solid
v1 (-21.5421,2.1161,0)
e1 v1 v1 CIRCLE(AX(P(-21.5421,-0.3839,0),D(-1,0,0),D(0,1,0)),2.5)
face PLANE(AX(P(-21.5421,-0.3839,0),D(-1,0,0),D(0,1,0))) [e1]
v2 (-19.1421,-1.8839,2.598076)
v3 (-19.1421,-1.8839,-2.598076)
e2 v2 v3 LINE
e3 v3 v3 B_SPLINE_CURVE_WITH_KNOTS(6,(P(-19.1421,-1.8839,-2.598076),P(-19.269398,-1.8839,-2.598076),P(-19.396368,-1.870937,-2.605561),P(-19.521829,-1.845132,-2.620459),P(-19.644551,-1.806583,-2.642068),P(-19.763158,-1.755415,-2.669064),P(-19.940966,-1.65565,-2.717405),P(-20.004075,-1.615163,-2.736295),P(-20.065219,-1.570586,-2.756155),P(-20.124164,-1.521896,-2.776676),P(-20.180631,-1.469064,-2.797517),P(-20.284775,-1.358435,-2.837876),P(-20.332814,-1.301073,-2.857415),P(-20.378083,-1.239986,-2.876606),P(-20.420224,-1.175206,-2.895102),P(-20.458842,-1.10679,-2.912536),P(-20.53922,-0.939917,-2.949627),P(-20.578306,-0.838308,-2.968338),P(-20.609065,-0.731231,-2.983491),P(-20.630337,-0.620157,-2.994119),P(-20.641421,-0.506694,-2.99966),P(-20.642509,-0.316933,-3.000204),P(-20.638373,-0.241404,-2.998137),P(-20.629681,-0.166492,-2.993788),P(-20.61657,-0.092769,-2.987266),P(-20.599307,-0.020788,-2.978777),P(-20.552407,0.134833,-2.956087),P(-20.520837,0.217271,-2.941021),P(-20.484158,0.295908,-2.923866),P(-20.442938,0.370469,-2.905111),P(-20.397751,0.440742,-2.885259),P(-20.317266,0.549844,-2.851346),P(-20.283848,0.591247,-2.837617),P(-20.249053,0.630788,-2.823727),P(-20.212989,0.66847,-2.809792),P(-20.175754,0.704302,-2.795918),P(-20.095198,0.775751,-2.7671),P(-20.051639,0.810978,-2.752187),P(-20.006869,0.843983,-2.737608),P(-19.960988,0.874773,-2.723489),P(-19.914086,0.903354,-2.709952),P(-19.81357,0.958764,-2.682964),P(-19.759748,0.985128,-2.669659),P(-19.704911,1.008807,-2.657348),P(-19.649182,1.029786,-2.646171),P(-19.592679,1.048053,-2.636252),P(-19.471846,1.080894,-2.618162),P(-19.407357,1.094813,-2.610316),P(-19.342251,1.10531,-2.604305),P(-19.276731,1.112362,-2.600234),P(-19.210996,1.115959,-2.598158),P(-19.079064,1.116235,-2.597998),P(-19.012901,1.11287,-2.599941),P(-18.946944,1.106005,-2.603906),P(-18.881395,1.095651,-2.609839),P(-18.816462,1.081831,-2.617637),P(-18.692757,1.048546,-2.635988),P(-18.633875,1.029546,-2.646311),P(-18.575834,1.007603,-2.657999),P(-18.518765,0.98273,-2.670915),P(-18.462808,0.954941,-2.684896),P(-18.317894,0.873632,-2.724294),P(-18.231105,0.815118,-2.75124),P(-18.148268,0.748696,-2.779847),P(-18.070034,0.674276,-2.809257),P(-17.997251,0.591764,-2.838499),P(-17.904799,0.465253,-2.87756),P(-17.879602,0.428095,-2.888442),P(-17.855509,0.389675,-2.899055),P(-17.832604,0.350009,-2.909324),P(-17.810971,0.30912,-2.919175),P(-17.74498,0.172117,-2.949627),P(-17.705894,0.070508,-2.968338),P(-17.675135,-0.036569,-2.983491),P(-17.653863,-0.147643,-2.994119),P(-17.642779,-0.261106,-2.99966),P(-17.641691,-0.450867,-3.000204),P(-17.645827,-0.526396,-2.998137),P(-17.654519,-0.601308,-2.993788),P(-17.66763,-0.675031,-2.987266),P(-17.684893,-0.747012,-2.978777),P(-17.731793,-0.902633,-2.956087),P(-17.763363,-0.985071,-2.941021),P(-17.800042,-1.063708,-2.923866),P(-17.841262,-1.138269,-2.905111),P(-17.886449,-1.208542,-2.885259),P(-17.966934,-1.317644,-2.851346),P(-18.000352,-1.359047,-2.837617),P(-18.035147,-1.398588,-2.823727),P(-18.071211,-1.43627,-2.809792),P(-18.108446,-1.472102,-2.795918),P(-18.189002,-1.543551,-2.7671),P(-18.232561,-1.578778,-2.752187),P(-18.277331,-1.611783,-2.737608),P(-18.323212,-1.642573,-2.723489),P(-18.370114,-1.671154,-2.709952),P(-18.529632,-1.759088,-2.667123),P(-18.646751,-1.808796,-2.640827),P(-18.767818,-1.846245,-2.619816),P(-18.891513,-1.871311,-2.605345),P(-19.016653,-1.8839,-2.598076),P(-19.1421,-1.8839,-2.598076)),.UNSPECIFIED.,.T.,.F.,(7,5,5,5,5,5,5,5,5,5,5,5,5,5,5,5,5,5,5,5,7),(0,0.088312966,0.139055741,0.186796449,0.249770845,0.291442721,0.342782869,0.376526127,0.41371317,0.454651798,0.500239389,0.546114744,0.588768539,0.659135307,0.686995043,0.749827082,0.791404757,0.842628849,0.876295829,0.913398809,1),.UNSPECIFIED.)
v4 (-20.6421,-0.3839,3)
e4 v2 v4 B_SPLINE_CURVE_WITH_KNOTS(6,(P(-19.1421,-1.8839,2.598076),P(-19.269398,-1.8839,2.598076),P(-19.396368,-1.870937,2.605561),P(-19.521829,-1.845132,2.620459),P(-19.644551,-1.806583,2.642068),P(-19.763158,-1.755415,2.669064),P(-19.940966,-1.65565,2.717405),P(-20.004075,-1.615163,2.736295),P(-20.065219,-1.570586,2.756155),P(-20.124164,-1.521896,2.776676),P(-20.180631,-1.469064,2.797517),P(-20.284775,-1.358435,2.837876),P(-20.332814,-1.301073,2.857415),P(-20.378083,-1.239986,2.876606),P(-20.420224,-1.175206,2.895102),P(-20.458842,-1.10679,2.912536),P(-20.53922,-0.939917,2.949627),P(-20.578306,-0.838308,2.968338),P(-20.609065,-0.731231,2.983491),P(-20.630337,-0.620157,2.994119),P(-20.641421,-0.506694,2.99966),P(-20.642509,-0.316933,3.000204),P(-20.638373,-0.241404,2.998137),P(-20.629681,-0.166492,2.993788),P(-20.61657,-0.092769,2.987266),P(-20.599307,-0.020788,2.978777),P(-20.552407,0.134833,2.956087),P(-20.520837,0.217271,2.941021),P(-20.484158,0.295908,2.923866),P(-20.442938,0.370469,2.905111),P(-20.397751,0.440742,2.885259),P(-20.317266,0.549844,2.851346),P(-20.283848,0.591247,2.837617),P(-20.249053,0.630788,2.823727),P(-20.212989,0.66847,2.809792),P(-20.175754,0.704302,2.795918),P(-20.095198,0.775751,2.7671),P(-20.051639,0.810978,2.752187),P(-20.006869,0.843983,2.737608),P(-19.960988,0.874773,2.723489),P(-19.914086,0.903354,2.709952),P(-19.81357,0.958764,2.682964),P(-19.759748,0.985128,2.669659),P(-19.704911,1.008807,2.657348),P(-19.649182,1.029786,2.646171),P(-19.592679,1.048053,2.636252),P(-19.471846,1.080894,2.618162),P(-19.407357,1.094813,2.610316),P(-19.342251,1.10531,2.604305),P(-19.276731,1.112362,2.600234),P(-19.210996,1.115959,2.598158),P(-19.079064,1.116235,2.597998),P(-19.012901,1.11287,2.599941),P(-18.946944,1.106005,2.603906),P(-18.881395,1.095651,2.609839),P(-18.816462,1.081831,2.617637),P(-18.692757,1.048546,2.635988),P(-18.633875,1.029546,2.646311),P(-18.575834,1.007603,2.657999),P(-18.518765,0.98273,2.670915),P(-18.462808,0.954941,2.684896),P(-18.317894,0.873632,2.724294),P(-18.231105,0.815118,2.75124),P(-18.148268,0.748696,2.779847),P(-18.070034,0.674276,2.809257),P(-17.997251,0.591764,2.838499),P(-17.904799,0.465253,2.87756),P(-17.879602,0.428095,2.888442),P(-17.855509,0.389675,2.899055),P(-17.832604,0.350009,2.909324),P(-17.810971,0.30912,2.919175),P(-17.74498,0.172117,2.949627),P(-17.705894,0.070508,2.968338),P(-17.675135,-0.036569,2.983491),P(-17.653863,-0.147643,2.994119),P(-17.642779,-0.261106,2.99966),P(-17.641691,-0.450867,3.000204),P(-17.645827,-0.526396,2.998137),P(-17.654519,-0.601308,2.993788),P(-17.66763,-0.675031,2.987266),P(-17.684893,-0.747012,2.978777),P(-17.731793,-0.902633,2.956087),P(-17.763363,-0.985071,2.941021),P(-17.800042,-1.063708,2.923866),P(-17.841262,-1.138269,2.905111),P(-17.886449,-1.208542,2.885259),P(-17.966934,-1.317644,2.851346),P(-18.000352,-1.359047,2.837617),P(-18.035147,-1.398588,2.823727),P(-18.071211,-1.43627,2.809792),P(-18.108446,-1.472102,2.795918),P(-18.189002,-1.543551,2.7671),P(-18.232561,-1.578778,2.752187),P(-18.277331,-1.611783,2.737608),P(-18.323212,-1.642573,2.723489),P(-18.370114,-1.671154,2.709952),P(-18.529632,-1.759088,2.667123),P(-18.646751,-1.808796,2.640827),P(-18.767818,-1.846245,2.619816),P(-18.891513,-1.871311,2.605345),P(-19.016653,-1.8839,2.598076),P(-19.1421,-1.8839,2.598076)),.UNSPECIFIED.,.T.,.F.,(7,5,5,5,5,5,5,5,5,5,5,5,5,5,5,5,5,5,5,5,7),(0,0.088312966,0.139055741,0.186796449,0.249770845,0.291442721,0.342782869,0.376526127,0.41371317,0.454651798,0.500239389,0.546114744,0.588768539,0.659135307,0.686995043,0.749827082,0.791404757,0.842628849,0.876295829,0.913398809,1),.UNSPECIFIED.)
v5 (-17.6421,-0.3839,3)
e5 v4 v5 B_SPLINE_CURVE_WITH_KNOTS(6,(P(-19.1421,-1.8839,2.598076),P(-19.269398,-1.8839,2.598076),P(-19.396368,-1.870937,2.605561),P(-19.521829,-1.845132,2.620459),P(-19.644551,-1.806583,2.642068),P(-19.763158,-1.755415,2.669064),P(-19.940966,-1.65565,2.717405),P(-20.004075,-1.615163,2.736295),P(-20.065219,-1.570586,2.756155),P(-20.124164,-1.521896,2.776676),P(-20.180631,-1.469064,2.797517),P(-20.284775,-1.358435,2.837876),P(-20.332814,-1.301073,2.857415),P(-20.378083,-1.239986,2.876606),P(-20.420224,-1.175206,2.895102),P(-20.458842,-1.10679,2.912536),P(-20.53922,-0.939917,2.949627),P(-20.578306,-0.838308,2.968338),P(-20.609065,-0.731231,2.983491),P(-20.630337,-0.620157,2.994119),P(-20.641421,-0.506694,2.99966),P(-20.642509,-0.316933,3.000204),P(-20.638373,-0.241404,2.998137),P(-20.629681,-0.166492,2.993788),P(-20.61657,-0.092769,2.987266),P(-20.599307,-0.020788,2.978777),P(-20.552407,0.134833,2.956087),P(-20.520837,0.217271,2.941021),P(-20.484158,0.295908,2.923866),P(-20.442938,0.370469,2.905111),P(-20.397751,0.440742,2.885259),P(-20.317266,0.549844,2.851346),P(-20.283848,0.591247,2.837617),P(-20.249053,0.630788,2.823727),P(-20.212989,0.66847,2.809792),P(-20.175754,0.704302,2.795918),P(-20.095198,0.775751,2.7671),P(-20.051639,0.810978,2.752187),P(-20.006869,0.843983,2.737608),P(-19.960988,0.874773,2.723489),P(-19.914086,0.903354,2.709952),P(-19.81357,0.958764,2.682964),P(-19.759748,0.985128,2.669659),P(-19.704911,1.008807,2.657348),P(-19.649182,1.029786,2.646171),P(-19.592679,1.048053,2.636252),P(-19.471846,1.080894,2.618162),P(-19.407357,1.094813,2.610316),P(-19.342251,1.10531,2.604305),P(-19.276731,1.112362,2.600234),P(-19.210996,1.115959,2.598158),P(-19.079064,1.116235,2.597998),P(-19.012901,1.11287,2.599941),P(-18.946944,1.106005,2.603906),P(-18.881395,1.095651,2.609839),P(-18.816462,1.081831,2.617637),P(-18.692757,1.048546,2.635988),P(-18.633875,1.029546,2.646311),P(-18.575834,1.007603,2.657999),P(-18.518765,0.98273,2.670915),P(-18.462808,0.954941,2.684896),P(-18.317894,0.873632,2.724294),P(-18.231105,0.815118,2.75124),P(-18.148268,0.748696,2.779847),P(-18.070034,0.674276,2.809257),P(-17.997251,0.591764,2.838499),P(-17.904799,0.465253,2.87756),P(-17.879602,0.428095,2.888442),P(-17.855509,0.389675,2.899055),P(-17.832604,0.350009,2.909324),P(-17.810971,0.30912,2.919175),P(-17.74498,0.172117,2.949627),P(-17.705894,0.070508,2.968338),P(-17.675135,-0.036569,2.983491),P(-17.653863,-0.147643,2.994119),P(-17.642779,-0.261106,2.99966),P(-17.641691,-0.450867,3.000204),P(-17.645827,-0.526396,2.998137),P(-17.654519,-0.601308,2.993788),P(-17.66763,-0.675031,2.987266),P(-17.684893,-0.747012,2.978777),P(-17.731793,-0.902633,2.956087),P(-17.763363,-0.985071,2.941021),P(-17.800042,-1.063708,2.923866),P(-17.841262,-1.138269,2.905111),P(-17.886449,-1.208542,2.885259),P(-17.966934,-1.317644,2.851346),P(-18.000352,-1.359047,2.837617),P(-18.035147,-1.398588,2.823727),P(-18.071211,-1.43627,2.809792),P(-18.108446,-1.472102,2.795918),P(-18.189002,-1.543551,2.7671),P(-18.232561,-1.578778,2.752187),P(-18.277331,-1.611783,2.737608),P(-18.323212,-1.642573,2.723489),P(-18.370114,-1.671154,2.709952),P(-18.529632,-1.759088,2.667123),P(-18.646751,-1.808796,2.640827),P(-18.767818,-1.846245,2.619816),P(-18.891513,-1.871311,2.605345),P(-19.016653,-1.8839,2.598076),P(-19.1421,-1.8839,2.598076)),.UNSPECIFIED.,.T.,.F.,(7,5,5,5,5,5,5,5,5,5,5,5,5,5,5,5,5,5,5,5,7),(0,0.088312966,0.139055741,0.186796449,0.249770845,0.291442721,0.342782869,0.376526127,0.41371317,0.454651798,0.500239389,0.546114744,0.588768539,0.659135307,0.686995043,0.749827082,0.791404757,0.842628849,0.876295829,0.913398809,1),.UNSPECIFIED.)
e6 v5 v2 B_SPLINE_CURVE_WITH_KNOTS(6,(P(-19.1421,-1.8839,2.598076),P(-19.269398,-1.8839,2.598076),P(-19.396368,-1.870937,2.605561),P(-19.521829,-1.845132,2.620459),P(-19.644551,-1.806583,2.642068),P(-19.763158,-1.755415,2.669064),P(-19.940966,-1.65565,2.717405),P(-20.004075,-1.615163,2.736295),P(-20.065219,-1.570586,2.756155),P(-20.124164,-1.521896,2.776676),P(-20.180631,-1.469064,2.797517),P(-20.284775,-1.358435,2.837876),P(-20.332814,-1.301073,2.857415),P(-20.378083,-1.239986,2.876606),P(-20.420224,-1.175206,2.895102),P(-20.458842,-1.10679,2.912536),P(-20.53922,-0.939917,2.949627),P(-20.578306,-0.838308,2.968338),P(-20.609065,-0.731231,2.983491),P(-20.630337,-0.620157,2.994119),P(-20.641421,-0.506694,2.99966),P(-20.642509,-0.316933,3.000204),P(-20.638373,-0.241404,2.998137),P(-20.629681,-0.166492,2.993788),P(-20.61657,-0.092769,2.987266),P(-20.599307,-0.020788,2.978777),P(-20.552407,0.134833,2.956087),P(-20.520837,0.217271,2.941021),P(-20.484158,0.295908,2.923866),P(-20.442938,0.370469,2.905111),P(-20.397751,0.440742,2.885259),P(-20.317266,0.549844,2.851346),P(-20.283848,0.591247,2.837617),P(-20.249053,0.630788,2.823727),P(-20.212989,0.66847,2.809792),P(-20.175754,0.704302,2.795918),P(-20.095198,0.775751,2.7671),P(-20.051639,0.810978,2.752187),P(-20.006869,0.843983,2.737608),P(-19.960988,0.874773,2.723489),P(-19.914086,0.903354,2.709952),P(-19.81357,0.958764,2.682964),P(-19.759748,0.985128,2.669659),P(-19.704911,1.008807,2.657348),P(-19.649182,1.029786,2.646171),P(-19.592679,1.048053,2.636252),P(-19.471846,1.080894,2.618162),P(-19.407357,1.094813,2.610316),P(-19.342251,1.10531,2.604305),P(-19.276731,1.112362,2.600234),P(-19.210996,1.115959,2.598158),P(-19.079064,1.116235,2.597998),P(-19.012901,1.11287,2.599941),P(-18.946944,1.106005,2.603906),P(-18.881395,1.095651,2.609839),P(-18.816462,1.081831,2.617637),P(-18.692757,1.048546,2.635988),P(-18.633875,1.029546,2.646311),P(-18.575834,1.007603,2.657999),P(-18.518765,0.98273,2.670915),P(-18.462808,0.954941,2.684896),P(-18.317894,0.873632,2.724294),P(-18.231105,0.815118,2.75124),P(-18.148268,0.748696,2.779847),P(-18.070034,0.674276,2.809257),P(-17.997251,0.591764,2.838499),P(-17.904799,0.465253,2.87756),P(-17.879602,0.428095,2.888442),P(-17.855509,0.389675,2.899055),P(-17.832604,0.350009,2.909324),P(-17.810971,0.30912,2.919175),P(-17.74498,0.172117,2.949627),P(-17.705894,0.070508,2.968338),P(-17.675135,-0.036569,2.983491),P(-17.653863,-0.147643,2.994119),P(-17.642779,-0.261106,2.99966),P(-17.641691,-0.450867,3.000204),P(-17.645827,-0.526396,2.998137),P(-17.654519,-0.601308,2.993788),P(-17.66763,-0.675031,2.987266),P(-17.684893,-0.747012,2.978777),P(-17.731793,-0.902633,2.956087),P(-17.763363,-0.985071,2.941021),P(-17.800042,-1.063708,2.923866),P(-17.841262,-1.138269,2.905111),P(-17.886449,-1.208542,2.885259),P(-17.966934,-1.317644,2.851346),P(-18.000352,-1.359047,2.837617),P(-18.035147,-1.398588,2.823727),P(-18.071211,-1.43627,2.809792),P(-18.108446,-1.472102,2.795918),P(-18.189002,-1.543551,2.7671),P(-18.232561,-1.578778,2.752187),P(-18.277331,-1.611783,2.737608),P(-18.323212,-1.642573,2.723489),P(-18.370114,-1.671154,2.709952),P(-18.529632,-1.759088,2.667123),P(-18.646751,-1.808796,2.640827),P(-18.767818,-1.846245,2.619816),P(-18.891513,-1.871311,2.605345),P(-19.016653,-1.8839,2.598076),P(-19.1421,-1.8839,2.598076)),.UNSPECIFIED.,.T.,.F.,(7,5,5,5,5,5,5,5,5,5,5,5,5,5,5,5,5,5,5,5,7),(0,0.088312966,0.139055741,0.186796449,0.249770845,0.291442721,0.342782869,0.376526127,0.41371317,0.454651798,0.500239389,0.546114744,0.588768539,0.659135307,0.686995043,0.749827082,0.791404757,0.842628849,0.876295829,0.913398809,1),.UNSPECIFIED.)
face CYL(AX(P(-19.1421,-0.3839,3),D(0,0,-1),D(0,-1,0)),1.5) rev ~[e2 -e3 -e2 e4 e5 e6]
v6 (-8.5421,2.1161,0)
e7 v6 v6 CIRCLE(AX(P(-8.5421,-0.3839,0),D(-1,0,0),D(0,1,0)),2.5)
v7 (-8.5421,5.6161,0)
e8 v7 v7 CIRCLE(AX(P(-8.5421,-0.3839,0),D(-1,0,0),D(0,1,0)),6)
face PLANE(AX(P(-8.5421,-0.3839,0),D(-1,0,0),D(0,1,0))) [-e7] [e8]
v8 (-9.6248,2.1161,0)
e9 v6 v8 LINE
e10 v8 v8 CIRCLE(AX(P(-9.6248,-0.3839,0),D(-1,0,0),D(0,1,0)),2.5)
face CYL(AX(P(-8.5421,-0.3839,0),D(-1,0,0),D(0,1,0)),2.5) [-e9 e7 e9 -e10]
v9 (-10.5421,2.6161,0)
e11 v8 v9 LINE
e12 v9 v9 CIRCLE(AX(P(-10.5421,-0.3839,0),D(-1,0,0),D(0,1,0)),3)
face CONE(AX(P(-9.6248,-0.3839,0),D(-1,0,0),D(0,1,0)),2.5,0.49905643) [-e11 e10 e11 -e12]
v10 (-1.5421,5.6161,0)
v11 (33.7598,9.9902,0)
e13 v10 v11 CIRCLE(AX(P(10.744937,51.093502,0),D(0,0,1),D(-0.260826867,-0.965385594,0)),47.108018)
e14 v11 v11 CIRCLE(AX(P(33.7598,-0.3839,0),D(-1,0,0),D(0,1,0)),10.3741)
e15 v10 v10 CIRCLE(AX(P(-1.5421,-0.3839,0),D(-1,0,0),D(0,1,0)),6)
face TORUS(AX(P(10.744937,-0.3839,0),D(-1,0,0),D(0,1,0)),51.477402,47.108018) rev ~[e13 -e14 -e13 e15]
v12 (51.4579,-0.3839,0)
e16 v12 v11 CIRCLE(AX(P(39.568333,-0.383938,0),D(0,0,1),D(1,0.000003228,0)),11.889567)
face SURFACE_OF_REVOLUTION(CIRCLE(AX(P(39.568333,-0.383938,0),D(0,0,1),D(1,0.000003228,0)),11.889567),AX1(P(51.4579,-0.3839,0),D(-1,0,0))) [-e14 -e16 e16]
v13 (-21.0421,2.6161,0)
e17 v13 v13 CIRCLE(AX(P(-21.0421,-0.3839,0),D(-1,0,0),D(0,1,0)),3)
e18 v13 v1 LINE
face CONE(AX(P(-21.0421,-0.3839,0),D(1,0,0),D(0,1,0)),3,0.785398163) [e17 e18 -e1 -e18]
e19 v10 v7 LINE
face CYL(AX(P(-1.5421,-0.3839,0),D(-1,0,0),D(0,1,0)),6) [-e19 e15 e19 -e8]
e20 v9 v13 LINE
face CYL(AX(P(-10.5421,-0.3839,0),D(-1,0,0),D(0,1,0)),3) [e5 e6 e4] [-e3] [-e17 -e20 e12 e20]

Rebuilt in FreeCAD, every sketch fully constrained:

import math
import FreeCAD as App
import Part
import Sketcher

V = App.Vector


def edges_at(feature, points):
    """Names of the edges that pass closest to the given points."""
    edges = feature.Shape.Edges
    near = lambda p: min(range(len(edges)), key=lambda i: edges[i].distToShape(Part.Vertex(*p))[0])
    return sorted({f"Edge{near(p) + 1}" for p in points})

doc = App.newDocument("Part")
body = doc.addObject("PartDesign::Body", "Body")

sketch1 = body.newObject("Sketcher::SketchObject", "Sketch")
sketch1.AttachmentSupport = (doc.getObject("XY_Plane"), [""])
sketch1.MapMode = "FlatFace"
sketch1.addGeometry([
    Part.ArcOfCircle(Part.Circle(V(39.5684, -0.3839, 0), V(0, 0, 1), 11.8895), math.radians(0), math.radians(119.245059)),
    Part.ArcOfCircle(Part.Circle(V(10.745, 51.0944, 0), V(0, 0, 1), 47.108901), math.radians(-105.118921), math.radians(-60.754943)),
    Part.LineSegment(V(-1.5421, 5.6161, 0), V(-8.5421, 5.6161, 0)),
    Part.LineSegment(V(-8.5421, 5.6161, 0), V(-8.5421, 2.1161, 0)),
    Part.LineSegment(V(-8.5421, 2.1161, 0), V(-9.6248, 2.1161, 0)),
    Part.LineSegment(V(-9.6248, 2.1161, 0), V(-10.5421, 2.6161, 0)),
    Part.LineSegment(V(-10.5421, 2.6161, 0), V(-21.5421, 2.6161, 0)),
    Part.LineSegment(V(-21.5421, 2.6161, 0), V(-21.5421, -0.3839, 0)),
    Part.LineSegment(V(-21.5421, -0.3839, 0), V(51.4579, -0.3839, 0)),
], False)
sketch1.addGeometry(Part.LineSegment(V(51.4579, -0.3839, 0), V(-21.5421, -0.3839, 0)), True)
sketch1.addConstraint([
    Sketcher.Constraint("Tangent", 0, 2, 1, 2),
    Sketcher.Constraint("Coincident", 1, 1, 2, 1),
    Sketcher.Constraint("Coincident", 2, 2, 3, 1),
    Sketcher.Constraint("Coincident", 3, 2, 4, 1),
    Sketcher.Constraint("Coincident", 4, 2, 5, 1),
    Sketcher.Constraint("Coincident", 5, 2, 6, 1),
    Sketcher.Constraint("Coincident", 6, 2, 7, 1),
    Sketcher.Constraint("Coincident", 7, 2, 8, 1),
    Sketcher.Constraint("Coincident", 8, 2, 0, 1),
    Sketcher.Constraint("Horizontal", 2),
    Sketcher.Constraint("Vertical", 3),
    Sketcher.Constraint("Horizontal", 4),
    Sketcher.Constraint("Horizontal", 6),
    Sketcher.Constraint("Vertical", 7),
    Sketcher.Constraint("Horizontal", 8),
    Sketcher.Constraint("Horizontal", 9),
    Sketcher.Constraint("Coincident", 9, 1, 8, 2),
    Sketcher.Constraint("Horizontal", 0, 3, 7, 2),
    Sketcher.Constraint("Vertical", 6, 2, 9, 2),
    Sketcher.Constraint("DistanceX", 2, 2, 2, 1, 7.0),
    Sketcher.Constraint("DistanceX", 6, 2, 6, 1, 11.0),
    Sketcher.Constraint("DistanceY", 7, 2, 7, 1, 3.0),
    Sketcher.Constraint("DistanceY", 0, 3, 1, 1, 6.0),
    Sketcher.Constraint("DistanceX", 6, 2, 3, 2, 13.0),
    Sketcher.Constraint("DistanceX", 3, 2, 8, 2, 60.0),
    Sketcher.Constraint("DistanceY", 0, 3, 3, 2, 2.5),
    Sketcher.Constraint("Radius", 1, 47.109),
    Sketcher.Constraint("Radius", 0, 11.8895),
    Sketcher.Constraint("DistanceX", 4, 2, 4, 1, 1.0827),
    Sketcher.Constraint("DistanceY", 0, 3, -1, 1, 0.384),
    Sketcher.Constraint("DistanceX", -1, 1, 1, 3, 10.745),
])
revolution = body.newObject("PartDesign::Revolution", "Revolution")
revolution.Profile = sketch1
revolution.ReferenceAxis = (sketch1, ["Axis0"])
revolution.Angle = 360
doc.recompute()

chamfer = body.newObject("PartDesign::Chamfer", "Chamfer")
chamfer.Base = (revolution, edges_at(revolution, [(-21.542, -3.384, 0)]))
chamfer.Size = 0.5

sketch2 = body.newObject("Sketcher::SketchObject", "Sketch001")
sketch2.AttachmentSupport = (doc.getObject("XY_Plane"), [""])
sketch2.MapMode = "FlatFace"
sketch2.AttachmentOffset = App.Placement(V(0, 0, 3), App.Rotation())
sketch2.addGeometry(Part.Circle(V(-19.1421, -0.3839, 0), V(0, 0, 1), 1.5), False)
sketch2.addConstraint([
    Sketcher.Constraint("Diameter", 0, 3.0),
    Sketcher.Constraint("DistanceX", 0, 3, -1, 1, 19.142),
    Sketcher.Constraint("DistanceY", 0, 3, -1, 1, 0.384),
])
doc.recompute()
hole = body.newObject("PartDesign::Hole", "Hole")
hole.Profile = sketch2
hole.ThreadType = "None"
hole.Diameter = 3
hole.DepthType = "ThroughAll"

doc.recompute()
